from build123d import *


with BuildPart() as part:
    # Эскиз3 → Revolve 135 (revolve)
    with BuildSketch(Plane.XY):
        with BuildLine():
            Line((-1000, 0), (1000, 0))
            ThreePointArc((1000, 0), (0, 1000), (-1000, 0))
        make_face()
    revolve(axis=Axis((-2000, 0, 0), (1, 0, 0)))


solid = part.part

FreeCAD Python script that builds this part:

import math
import FreeCAD as App
import Part
import Sketcher

V = App.Vector

doc = App.newDocument("Part")
params = doc.addObject("Spreadsheet::Sheet", "Params")
for row, (alias, value) in enumerate([
    ("sketch1_radius", "1000 mm"),
    ("revolution_angle", "360 deg"),
], start=1):
    params.set(f"A{row}", alias)
    params.set(f"B{row}", "=" + value)
    params.setAlias(f"B{row}", alias)

body = doc.addObject("PartDesign::Body", "Body")

sketch1 = body.newObject("Sketcher::SketchObject", "Sketch")
sketch1.AttachmentSupport = (doc.getObject("XY_Plane"), [""])
sketch1.MapMode = "FlatFace"
sketch1.addGeometry([
    Part.LineSegment(V(-1000, 0, 0), V(1000, 0, 0)),
    Part.ArcOfCircle(Part.Circle(V(0, 0, 0), V(0, 0, 1), 1000), math.radians(0), math.radians(180)),
], False)
sketch1.addConstraint([
    Sketcher.Constraint("Coincident", 0, 1, 1, 2),
    Sketcher.Constraint("Coincident", 1, 1, 0, 2),
    Sketcher.Constraint("Horizontal", 0),
    Sketcher.Constraint("Coincident", 1, 3, -1, 1),
    Sketcher.Constraint("PointOnObject", 0, 1, -1),
    Sketcher.Constraint("Radius", 1, 1000.0),
])
sketch1.setExpression("Constraints[5]", "Params.sketch1_radius")
revolution = body.newObject("PartDesign::Revolution", "Revolution")
revolution.Profile = sketch1
revolution.ReferenceAxis = (sketch1, ["H_Axis"])
revolution.setExpression("Angle", "Params.revolution_angle")

doc.recompute()
